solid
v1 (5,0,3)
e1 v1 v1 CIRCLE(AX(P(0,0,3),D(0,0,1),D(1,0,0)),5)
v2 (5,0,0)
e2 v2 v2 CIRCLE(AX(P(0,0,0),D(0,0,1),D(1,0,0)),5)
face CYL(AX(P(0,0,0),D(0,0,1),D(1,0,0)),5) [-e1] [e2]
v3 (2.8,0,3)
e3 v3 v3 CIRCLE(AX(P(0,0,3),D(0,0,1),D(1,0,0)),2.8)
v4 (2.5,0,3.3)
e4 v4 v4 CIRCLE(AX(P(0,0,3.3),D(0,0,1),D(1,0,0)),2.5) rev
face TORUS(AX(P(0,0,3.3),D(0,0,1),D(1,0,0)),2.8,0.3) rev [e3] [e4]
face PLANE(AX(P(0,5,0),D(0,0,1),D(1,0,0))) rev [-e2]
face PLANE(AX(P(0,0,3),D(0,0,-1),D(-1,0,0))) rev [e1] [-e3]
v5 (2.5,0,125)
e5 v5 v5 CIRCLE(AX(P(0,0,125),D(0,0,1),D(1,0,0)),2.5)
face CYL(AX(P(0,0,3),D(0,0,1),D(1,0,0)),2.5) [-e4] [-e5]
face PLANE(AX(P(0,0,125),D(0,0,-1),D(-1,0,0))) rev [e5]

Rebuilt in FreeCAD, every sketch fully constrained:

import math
import FreeCAD as App
import Part
import Sketcher
from FreeCAD import Vector
Q = App.Units.Quantity


def add_polygon(sketch, points):
    """Adds a closed chain of lines whose ends are joined by coincident constraints."""
    first, n = sketch.GeometryCount, len(points)
    for a, b in zip(points, points[1:] + points[:1]):
        sketch.addGeometry(Part.LineSegment(App.Vector(*a, 0), App.Vector(*b, 0)), False)
    for i in range(n):
        sketch.addConstraint(Sketcher.Constraint("Coincident", first + i, 2, first + (i + 1) % n, 1))

doc = App.newDocument("Part")
params = doc.addObject("Spreadsheet::Sheet", "Params")
for row, (alias, value) in enumerate([
    ("sketch1_width", "5 mm"),
    ("sketch1_height", "3 mm"),
    ("revolution_angle", "360 deg"),
    ("sketch2_height", "122 mm"),
    ("sketch2_width", "2.5 mm"),
    ("revolution2_angle", "360 deg"),
    ("sketch3_radius", "0.3 mm"),
    ("revolution3_angle", "360 deg"),
], start=1):
    params.set(f"A{row}", alias)
    params.set(f"B{row}", "=" + value)
    params.setAlias(f"B{row}", alias)

body = doc.addObject("PartDesign::Body", "Body")

# Sketch on YZ plane
sketch1 = doc.addObject("Sketcher::SketchObject", "Sketch")
body.addObject(sketch1)
sketch1.AttachmentSupport = (doc.YZ_Plane, [""])
sketch1.MapMode = "FlatFace"
add_polygon(sketch1, [(5, 3), (0, 3), (0, 0), (5, 0)])  # lines 0-3
sketch1.addConstraint([
    Sketcher.Constraint("Horizontal", 0),
    Sketcher.Constraint("Vertical", 1),
    Sketcher.Constraint("Horizontal", 2),
    Sketcher.Constraint("Vertical", 3),
    Sketcher.Constraint("Coincident", 1, 2, -1, 1),
    Sketcher.Constraint("DistanceX", 0, 2, 0, 1, Q("5 mm")),
    Sketcher.Constraint("DistanceY", 1, 2, 1, 1, Q("3 mm")),
])
sketch1.setExpression("Constraints[9]", "Params.sketch1_width")
sketch1.setExpression("Constraints[10]", "Params.sketch1_height")
revolution = doc.addObject("PartDesign::Revolution", "Revolution")
body.addObject(revolution)
revolution.Profile = sketch1
revolution.ReferenceAxis = (sketch1, ["V_Axis"])
revolution.setExpression("Angle", "Params.revolution_angle")

# Sketch on YZ plane
sketch2 = doc.addObject("Sketcher::SketchObject", "Sketch001")
body.addObject(sketch2)
sketch2.AttachmentSupport = (doc.YZ_Plane, [""])
sketch2.MapMode = "FlatFace"
add_polygon(sketch2, [(2.5, 125), (0, 125), (0, 3), (2.5, 3)])  # lines 0-3
sketch2.addConstraint([
    Sketcher.Constraint("Horizontal", 0),
    Sketcher.Constraint("Vertical", 1),
    Sketcher.Constraint("Horizontal", 2),
    Sketcher.Constraint("Vertical", 3),
    Sketcher.Constraint("PointOnObject", 0, 2, -2),
    Sketcher.Constraint("DistanceY", 1, 2, 1, 1, Q("122 mm")),
    Sketcher.Constraint("DistanceX", 0, 2, 0, 1, Q("2.5 mm")),
    Sketcher.Constraint("DistanceY", -1, 1, 0, 2, Q("125 mm")),
])
sketch2.setExpression("Constraints[9]", "Params.sketch2_height")
sketch2.setExpression("Constraints[10]", "Params.sketch2_width")
revolution2 = doc.addObject("PartDesign::Revolution", "Revolution001")
body.addObject(revolution2)
revolution2.Profile = sketch2
revolution2.ReferenceAxis = (sketch2, ["V_Axis"])
revolution2.setExpression("Angle", "Params.revolution2_angle")

# Sketch on YZ plane
sketch3 = doc.addObject("Sketcher::SketchObject", "Sketch002")
body.addObject(sketch3)
sketch3.AttachmentSupport = (doc.YZ_Plane, [""])
sketch3.MapMode = "FlatFace"
sketch3.addGeometry([
    Part.LineSegment(Vector(2.5, 3.3, 0), Vector(2.5, 3, 0)),
    Part.LineSegment(Vector(2.5, 3, 0), Vector(2.8, 3, 0)),
    Part.ArcOfCircle(Part.Circle(Vector(2.8, 3.3, 0), Vector(0, 0, 1), 0.3), math.radians(-180), math.radians(-90)),
], False)
sketch3.addConstraint([
    Sketcher.Constraint("Coincident", 0, 2, 1, 1),
    Sketcher.Constraint("Tangent", 1, 2, 2, 2),
    Sketcher.Constraint("Tangent", 2, 1, 0, 1),
    Sketcher.Constraint("Vertical", 0),
    Sketcher.Constraint("Horizontal", 1),
    Sketcher.Constraint("Radius", 2, Q("0.3 mm")),
    Sketcher.Constraint("DistanceY", -1, 1, 0, 2, Q("3 mm")),
    Sketcher.Constraint("DistanceX", -1, 1, 2, 3, Q("2.8 mm")),
])
sketch3.setExpression("Constraints[5]", "Params.sketch3_radius")
revolution3 = doc.addObject("PartDesign::Revolution", "Revolution002")
body.addObject(revolution3)
revolution3.Profile = sketch3
revolution3.ReferenceAxis = (sketch3, ["V_Axis"])
revolution3.setExpression("Angle", "Params.revolution3_angle")

doc.recompute()
